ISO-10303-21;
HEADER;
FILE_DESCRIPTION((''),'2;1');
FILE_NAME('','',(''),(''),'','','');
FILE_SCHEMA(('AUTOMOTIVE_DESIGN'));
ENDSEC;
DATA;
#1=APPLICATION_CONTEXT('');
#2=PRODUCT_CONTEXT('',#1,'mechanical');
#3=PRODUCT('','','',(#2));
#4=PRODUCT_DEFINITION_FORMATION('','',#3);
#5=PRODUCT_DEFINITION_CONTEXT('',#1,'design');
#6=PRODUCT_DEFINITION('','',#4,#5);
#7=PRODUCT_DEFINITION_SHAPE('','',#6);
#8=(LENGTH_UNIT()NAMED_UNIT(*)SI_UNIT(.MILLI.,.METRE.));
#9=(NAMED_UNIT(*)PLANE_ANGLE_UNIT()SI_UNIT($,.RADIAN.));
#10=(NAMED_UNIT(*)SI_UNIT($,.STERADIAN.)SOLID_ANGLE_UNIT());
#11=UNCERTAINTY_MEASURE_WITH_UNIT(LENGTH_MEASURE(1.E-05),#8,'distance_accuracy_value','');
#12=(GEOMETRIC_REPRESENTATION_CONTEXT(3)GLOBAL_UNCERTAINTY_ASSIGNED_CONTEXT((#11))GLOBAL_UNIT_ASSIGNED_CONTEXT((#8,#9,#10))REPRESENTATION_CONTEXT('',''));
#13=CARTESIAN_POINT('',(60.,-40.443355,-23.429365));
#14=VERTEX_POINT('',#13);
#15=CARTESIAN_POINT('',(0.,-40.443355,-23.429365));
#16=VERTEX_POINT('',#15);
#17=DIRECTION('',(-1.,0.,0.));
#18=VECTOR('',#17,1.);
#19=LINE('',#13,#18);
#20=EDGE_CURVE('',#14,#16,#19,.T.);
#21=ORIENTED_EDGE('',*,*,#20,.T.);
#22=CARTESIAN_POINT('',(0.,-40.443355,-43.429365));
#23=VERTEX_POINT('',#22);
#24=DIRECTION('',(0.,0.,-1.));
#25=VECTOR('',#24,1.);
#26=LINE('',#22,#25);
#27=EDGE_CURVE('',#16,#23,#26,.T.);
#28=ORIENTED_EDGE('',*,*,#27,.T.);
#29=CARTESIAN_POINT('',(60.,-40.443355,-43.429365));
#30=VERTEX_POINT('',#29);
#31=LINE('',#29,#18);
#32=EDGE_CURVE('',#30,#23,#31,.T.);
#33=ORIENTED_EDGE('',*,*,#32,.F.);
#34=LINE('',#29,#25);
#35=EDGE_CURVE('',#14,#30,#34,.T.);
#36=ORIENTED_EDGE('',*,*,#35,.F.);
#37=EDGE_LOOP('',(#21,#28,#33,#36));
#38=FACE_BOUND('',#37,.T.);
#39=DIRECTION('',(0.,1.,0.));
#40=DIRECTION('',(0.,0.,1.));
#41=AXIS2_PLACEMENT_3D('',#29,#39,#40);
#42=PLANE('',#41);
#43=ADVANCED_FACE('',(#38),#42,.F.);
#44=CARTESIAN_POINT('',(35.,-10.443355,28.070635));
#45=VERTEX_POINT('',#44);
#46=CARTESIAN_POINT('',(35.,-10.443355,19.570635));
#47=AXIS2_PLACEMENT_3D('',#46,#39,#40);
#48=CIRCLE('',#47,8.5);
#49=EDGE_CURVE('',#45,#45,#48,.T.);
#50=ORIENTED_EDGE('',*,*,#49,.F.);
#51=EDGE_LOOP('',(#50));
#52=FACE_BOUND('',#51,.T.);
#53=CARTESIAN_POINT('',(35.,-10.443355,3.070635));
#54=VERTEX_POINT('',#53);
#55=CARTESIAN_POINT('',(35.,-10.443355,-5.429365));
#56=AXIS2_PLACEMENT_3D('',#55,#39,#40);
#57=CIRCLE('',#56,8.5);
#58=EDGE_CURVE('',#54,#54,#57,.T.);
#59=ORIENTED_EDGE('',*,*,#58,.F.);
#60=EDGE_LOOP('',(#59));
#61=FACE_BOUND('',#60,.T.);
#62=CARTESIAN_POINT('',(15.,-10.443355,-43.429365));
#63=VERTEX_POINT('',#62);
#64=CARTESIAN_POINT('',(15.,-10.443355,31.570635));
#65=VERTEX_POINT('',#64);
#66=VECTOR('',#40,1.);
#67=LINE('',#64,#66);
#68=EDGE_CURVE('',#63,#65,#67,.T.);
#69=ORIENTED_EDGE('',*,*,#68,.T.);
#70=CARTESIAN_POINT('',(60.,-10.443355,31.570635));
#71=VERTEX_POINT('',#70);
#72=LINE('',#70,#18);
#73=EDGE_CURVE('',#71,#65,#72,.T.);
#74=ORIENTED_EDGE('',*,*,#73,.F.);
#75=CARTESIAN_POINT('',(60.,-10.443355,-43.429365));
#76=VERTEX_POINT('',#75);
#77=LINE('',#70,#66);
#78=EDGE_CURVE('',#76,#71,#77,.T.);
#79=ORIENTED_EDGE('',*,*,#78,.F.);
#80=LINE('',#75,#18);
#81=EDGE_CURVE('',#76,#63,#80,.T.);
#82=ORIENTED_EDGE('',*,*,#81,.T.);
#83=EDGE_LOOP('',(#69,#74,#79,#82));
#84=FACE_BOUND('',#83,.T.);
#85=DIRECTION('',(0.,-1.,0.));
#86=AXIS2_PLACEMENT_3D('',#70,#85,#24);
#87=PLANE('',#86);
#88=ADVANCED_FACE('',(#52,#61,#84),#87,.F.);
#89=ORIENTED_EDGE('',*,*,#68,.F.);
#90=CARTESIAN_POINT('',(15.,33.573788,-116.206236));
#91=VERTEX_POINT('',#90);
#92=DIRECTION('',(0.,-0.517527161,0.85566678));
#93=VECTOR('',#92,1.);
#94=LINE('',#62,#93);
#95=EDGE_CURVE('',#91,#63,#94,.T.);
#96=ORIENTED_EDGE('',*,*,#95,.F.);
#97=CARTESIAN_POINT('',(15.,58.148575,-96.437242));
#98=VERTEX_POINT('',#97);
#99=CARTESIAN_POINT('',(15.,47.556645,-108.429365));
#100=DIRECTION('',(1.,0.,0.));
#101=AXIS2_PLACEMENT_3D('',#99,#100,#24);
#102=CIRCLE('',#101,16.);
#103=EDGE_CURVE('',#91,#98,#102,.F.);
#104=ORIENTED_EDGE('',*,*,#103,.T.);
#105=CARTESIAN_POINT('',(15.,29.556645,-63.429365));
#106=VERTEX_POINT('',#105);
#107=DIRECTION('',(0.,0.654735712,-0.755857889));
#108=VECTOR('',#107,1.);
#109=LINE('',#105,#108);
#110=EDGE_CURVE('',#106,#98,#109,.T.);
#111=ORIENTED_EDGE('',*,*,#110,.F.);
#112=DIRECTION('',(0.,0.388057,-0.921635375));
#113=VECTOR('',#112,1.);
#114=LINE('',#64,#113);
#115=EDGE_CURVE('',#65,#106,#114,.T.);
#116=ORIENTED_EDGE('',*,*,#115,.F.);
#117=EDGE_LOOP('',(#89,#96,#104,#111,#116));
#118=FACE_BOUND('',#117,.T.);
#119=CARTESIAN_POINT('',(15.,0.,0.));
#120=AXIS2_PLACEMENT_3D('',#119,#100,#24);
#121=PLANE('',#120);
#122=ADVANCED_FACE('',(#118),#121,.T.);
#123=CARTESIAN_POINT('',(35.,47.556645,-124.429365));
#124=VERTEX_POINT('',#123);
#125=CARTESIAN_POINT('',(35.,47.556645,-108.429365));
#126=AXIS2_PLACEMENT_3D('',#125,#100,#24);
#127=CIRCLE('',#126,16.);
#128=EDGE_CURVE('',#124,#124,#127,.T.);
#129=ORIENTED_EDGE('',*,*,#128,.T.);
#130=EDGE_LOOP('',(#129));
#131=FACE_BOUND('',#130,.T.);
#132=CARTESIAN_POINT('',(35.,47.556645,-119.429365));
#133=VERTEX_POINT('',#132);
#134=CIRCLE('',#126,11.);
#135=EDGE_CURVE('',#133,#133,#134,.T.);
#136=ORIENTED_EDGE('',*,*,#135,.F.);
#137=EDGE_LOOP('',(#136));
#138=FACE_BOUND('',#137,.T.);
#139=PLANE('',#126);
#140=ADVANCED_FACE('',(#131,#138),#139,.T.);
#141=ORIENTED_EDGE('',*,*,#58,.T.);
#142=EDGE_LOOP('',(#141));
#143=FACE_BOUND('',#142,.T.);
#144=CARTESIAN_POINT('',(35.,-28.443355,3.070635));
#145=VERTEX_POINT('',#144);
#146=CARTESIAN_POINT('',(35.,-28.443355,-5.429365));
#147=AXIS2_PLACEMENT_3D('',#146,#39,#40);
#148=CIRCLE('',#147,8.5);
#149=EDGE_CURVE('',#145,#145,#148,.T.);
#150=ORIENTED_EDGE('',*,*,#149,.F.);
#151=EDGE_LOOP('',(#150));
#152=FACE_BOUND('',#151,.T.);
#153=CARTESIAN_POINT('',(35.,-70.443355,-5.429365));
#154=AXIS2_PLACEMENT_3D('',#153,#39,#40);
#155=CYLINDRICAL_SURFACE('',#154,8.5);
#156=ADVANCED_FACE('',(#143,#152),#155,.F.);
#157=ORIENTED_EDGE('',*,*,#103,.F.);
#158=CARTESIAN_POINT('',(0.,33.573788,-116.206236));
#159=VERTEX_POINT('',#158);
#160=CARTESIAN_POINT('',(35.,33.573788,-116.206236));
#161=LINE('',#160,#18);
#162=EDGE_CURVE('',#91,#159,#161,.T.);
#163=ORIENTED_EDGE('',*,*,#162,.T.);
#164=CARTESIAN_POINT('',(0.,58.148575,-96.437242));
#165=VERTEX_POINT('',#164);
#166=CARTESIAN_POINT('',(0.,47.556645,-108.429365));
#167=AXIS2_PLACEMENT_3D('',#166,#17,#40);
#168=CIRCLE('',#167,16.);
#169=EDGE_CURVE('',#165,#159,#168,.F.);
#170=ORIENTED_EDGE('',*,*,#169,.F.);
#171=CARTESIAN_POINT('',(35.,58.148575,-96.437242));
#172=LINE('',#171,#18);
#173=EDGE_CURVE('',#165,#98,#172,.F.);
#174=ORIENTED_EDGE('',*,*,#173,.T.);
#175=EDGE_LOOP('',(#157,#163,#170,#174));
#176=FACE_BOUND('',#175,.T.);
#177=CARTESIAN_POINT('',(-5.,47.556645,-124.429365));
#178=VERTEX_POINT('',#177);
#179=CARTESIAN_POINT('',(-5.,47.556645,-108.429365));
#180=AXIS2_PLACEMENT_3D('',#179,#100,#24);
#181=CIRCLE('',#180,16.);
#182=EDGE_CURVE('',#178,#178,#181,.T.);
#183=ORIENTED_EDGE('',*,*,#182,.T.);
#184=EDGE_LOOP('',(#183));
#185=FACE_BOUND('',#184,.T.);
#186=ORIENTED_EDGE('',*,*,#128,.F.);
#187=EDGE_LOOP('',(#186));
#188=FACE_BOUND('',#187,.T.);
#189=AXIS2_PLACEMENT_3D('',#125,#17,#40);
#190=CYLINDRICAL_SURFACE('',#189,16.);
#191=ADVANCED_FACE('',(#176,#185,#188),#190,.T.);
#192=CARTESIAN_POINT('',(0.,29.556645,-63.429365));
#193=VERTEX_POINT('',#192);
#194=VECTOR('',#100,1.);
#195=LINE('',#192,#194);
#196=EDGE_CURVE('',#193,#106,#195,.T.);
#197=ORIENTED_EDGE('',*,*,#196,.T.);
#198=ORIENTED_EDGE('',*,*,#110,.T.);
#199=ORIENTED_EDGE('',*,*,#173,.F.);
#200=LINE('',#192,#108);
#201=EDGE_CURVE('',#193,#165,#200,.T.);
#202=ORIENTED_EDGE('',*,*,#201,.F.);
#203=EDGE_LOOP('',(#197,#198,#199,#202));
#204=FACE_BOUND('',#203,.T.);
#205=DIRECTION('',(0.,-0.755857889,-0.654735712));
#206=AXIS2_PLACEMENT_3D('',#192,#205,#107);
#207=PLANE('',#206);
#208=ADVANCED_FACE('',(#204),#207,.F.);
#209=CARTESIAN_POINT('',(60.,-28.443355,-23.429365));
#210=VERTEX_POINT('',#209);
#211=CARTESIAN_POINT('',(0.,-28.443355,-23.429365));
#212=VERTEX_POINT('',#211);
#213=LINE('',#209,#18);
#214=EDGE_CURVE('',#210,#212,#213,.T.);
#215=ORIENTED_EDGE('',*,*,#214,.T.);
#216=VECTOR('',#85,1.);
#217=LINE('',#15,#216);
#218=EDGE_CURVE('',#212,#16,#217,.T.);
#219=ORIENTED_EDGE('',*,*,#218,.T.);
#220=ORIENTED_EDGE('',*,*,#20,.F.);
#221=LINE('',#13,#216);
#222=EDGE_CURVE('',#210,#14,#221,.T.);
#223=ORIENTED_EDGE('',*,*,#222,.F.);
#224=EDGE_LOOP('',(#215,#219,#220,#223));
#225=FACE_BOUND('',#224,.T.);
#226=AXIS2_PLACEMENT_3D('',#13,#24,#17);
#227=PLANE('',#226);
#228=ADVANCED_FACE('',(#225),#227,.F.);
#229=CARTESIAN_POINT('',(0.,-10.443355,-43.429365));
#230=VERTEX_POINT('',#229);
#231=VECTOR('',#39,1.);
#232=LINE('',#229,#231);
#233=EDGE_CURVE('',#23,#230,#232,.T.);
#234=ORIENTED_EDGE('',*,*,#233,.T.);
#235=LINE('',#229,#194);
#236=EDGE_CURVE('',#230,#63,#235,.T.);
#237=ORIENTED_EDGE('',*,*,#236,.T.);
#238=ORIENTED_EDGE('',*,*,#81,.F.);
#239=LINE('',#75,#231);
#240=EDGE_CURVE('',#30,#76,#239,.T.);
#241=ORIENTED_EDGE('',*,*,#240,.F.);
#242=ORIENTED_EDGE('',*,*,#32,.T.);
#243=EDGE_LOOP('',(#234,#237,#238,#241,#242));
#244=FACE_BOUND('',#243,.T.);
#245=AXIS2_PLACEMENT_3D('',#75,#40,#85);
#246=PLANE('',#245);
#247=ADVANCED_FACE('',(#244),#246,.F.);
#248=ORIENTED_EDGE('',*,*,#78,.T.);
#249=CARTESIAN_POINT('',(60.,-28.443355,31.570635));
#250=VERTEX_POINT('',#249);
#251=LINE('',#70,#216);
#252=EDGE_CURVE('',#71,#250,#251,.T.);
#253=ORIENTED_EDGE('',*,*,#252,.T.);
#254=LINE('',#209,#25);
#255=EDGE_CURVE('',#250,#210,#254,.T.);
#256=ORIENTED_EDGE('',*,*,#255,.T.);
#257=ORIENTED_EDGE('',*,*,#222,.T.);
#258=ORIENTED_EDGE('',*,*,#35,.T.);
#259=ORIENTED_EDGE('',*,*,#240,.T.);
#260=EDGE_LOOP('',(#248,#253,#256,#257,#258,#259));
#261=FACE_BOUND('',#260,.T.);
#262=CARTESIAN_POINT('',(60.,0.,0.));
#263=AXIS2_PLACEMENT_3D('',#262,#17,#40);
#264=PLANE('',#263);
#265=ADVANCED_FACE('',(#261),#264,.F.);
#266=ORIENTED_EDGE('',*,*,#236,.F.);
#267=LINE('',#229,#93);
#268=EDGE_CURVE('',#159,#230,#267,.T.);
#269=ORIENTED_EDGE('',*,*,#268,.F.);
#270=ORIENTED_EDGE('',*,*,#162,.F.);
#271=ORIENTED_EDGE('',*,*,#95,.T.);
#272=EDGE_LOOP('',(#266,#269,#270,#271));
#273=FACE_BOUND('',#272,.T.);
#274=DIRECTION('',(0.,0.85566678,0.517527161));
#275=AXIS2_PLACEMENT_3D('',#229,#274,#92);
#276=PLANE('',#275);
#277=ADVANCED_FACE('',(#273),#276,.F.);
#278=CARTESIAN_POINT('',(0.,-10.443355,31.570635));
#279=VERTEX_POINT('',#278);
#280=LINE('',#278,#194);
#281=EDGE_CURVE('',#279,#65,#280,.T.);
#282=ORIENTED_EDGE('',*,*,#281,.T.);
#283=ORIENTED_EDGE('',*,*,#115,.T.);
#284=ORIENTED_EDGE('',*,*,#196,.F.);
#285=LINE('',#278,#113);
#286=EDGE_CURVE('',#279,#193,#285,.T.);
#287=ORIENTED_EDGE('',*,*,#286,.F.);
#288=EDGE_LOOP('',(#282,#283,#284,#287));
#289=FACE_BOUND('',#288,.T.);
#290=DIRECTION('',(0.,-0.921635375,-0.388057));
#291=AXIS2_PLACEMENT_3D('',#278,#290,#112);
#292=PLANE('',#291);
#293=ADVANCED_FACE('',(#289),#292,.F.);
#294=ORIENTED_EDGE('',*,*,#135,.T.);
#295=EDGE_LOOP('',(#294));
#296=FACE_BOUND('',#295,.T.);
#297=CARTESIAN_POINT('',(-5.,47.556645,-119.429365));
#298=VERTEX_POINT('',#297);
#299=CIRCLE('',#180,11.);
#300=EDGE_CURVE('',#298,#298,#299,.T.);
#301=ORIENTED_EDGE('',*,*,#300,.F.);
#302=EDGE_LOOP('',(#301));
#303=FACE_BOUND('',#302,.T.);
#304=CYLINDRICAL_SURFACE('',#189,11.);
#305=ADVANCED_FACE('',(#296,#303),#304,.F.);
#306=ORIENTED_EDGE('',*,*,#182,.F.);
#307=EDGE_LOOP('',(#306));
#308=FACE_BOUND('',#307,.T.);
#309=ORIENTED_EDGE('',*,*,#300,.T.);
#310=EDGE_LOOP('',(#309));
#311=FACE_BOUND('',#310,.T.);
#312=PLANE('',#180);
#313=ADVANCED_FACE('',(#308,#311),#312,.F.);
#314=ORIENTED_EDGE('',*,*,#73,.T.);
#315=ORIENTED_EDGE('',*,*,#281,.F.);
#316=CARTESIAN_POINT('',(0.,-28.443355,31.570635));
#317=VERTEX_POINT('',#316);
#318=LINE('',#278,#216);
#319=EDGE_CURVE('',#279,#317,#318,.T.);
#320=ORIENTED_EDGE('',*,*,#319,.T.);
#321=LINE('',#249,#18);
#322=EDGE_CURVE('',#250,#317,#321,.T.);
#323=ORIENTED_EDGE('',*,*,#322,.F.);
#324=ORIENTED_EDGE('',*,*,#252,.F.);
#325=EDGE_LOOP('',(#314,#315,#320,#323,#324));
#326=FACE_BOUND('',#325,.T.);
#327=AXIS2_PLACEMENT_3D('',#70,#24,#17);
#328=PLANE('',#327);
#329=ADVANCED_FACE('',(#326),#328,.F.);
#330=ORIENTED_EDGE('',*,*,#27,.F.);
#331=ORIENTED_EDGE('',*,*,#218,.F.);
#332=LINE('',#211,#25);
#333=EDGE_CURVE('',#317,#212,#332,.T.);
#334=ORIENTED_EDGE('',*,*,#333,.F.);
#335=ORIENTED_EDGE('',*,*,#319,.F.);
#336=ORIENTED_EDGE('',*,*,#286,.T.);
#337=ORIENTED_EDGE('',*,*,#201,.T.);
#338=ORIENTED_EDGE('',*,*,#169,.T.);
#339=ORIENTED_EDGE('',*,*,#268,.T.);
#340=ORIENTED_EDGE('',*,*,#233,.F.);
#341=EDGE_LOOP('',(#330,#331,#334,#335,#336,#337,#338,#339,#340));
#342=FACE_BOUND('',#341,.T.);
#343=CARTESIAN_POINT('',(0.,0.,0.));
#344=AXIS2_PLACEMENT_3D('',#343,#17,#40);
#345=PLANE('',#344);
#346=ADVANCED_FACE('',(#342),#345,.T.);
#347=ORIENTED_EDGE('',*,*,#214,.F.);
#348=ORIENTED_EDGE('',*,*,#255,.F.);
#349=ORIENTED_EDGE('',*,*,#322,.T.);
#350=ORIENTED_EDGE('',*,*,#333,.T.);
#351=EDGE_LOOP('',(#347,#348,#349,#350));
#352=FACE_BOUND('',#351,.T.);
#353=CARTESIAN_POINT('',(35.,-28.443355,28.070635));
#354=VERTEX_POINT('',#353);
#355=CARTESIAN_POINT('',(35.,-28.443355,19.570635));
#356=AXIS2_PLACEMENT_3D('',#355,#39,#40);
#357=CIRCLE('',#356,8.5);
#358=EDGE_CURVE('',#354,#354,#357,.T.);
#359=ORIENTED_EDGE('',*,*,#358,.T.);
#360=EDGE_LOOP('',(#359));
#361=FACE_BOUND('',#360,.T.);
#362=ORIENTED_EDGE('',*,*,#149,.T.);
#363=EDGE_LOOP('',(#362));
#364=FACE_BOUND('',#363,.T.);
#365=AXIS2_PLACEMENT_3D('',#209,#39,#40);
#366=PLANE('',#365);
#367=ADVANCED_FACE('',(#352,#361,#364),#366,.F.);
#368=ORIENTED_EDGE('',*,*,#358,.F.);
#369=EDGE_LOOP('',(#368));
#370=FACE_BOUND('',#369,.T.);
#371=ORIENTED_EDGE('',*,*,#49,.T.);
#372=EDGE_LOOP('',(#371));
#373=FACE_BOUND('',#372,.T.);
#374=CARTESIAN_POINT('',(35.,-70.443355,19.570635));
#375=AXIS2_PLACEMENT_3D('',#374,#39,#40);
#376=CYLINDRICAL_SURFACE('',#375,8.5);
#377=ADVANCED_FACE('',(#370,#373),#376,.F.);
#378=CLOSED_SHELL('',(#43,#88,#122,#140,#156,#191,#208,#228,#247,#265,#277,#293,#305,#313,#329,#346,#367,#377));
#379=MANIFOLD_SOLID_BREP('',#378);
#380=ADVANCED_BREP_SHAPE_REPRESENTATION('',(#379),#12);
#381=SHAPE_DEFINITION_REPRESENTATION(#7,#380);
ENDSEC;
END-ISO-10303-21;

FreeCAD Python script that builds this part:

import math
import FreeCAD as App
import Part
import Sketcher
from FreeCAD import Vector
Q = App.Units.Quantity

doc = App.newDocument("Part")
params = doc.addObject("Spreadsheet::Sheet", "Params")
for row, (alias, value) in enumerate([
    ("sketch1_width", "18 mm"),
    ("sketch1_width2", "12 mm"),
    ("sketch1_height", "55 mm"),
    ("sketch1_height2", "20 mm"),
    ("pad1_length", "60 mm"),
    ("sketch2_diameter", "17 mm"),
    ("pocket1_length", "60 mm"),
    ("sketch3_height", "75 mm"),
    ("sketch3_length", "32 mm"),
    ("pad2_length", "15 mm"),
    ("sketch4_diameter", "32 mm"),
    ("sketch4_diameter2", "22 mm"),
    ("pad3_length", "20 mm"),
    ("pad3_length2", "20 mm"),
    ("sketch5_radius", "11 mm"),
    ("pocket2_length", "57 mm"),
], start=1):
    params.set(f"A{row}", alias)
    params.set(f"B{row}", "=" + value)
    params.setAlias(f"B{row}", alias)

body = doc.addObject("PartDesign::Body", "Body")

sketch1 = body.newObject("Sketcher::SketchObject", "Sketch")
sketch1.AttachmentSupport = (doc.getObject("YZ_Plane"), [""])
sketch1.MapMode = "FlatFace"
sketch1.addGeometry([
    Part.LineSegment(Vector(-10, 32, 0), Vector(-28, 32, 0)),
    Part.LineSegment(Vector(-28, 32, 0), Vector(-28, -23, 0)),
    Part.LineSegment(Vector(-28, -23, 0), Vector(-40, -23, 0)),
    Part.LineSegment(Vector(-40, -23, 0), Vector(-40, -43, 0)),
    Part.LineSegment(Vector(-40, -43, 0), Vector(-10, -43, 0)),
    Part.LineSegment(Vector(-10, -43, 0), Vector(-10, 32, 0)),
], False)
sketch1.addConstraint([
    Sketcher.Constraint("Coincident", 0, 2, 1, 1),
    Sketcher.Constraint("Coincident", 1, 2, 2, 1),
    Sketcher.Constraint("Coincident", 2, 2, 3, 1),
    Sketcher.Constraint("Coincident", 3, 2, 4, 1),
    Sketcher.Constraint("Coincident", 4, 2, 5, 1),
    Sketcher.Constraint("Coincident", 5, 2, 0, 1),
    Sketcher.Constraint("Horizontal", 0),
    Sketcher.Constraint("Vertical", 1),
    Sketcher.Constraint("Horizontal", 2),
    Sketcher.Constraint("Vertical", 3),
    Sketcher.Constraint("Horizontal", 4),
    Sketcher.Constraint("Vertical", 5),
    Sketcher.Constraint("DistanceX", 0, 2, 0, 1, Q("18 mm")),
    Sketcher.Constraint("DistanceX", 2, 2, 2, 1, Q("12 mm")),
    Sketcher.Constraint("DistanceY", 1, 2, 1, 1, Q("55 mm")),
    Sketcher.Constraint("DistanceY", 3, 2, 3, 1, Q("20 mm")),
    Sketcher.Constraint("DistanceX", 0, 2, -1, 1, Q("28.443355 mm")),
    Sketcher.Constraint("DistanceY", -1, 1, 0, 2, Q("31.570635 mm")),
])
sketch1.setExpression("Constraints[12]", "Params.sketch1_width")
sketch1.setExpression("Constraints[13]", "Params.sketch1_width2")
sketch1.setExpression("Constraints[14]", "Params.sketch1_height")
sketch1.setExpression("Constraints[15]", "Params.sketch1_height2")
pad1 = body.newObject("PartDesign::Pad", "Pad")
pad1.Profile = sketch1
pad1.setExpression("Length", "Params.pad1_length")

sketch2 = body.newObject("Sketcher::SketchObject", "Sketch001")
sketch2.AttachmentSupport = (doc.getObject("XZ_Plane"), [""])
sketch2.MapMode = "FlatFace"
sketch2.AttachmentOffset = App.Placement(Vector(0, 0, 10.443355), App.Rotation())
sketch2.addGeometry([
    Part.Circle(Vector(35, 20, 0), Vector(0, 0, 1), 8),
    Part.Circle(Vector(35, -5, 0), Vector(0, 0, 1), 8),
], False)
sketch2.addConstraint([
    Sketcher.Constraint("Equal", 0, 1),
    Sketcher.Constraint("Vertical", 0, 3, 1, 3),
    Sketcher.Constraint("Diameter", 0, Q("17 mm")),
    Sketcher.Constraint("DistanceX", -1, 1, 0, 3, Q("35 mm")),
    Sketcher.Constraint("DistanceY", 1, 3, 0, 3, Q("25 mm")),
    Sketcher.Constraint("DistanceY", -1, 1, 0, 3, Q("19.570635 mm")),
])
sketch2.setExpression("Constraints[2]", "Params.sketch2_diameter")
pocket1 = body.newObject("PartDesign::Pocket", "Pocket")
pocket1.Profile = sketch2
pocket1.setExpression("Length", "Params.pocket1_length")
pocket1.Reversed = True

sketch3 = body.newObject("Sketcher::SketchObject", "Sketch002")
sketch3.AttachmentSupport = (doc.getObject("YZ_Plane"), [""])
sketch3.MapMode = "FlatFace"
sketch3.addGeometry([
    Part.LineSegment(Vector(-10, 32, 0), Vector(-10, -43, 0)),
    Part.LineSegment(Vector(-10, -43, 0), Vector(34, -117, 0)),
    Part.LineSegment(Vector(34, -117, 0), Vector(61, -100, 0)),
    Part.LineSegment(Vector(61, -100, 0), Vector(30, -63, 0)),
    Part.LineSegment(Vector(30, -63, 0), Vector(-10, 32, 0)),
], False)
sketch3.addConstraint([
    Sketcher.Constraint("Coincident", 0, 2, 1, 1),
    Sketcher.Constraint("Coincident", 1, 2, 2, 1),
    Sketcher.Constraint("Coincident", 2, 2, 3, 1),
    Sketcher.Constraint("Coincident", 3, 2, 4, 1),
    Sketcher.Constraint("Coincident", 4, 2, 0, 1),
    Sketcher.Constraint("Vertical", 0),
    Sketcher.Constraint("DistanceY", 0, 2, 0, 1, Q("75 mm")),
    Sketcher.Constraint("Distance", 2, Q("32 mm")),
    Sketcher.Constraint("DistanceX", 0, 2, 3, 2, Q("40 mm")),
    Sketcher.Constraint("DistanceY", 3, 2, 0, 2, Q("20 mm")),
    Sketcher.Constraint("DistanceX", -1, 1, 2, 2, Q("60.936998 mm")),
    Sketcher.Constraint("DistanceY", 1, 2, -1, 1, Q("117.202401 mm")),
    Sketcher.Constraint("DistanceY", 2, 2, -1, 1, Q("99.65633 mm")),
    Sketcher.Constraint("Distance", 1, Q("86.217015 mm")),
    Sketcher.Constraint("Distance", 3, Q("47.928275 mm")),
])
sketch3.setExpression("Constraints[6]", "Params.sketch3_height")
sketch3.setExpression("Constraints[7]", "Params.sketch3_length")
pad2 = body.newObject("PartDesign::Pad", "Pad001")
pad2.Profile = sketch3
pad2.setExpression("Length", "Params.pad2_length")

sketch4 = body.newObject("Sketcher::SketchObject", "Sketch003")
sketch4.AttachmentSupport = (doc.getObject("YZ_Plane"), [""])
sketch4.MapMode = "FlatFace"
sketch4.AttachmentOffset = App.Placement(Vector(0, 0, 15), App.Rotation())
sketch4.addGeometry([
    Part.Circle(Vector(48, -108, 0), Vector(0, 0, 1), 16),
    Part.Circle(Vector(48, -108, 0), Vector(0, 0, 1), 11),
], False)
sketch4.addConstraint([
    Sketcher.Constraint("Coincident", 1, 3, 0, 3),
    Sketcher.Constraint("Diameter", 0, Q("32 mm")),
    Sketcher.Constraint("Diameter", 1, Q("22 mm")),
    Sketcher.Constraint("DistanceX", -1, 1, 0, 3, Q("47.556645 mm")),
    Sketcher.Constraint("DistanceY", 0, 3, -1, 1, Q("108.429365 mm")),
])
sketch4.setExpression("Constraints[1]", "Params.sketch4_diameter")
sketch4.setExpression("Constraints[2]", "Params.sketch4_diameter2")
pad3 = body.newObject("PartDesign::Pad", "Pad002")
pad3.Profile = sketch4
pad3.Type = "TwoLengths"
pad3.setExpression("Length", "Params.pad3_length")
pad3.setExpression("Length2", "Params.pad3_length2")

sketch5 = body.newObject("Sketcher::SketchObject", "Sketch004")
sketch5.AttachmentSupport = (doc.getObject("YZ_Plane"), [""])
sketch5.MapMode = "FlatFace"
sketch5.AttachmentOffset = App.Placement(Vector(0, 0, 15), App.Rotation())
sketch5.addGeometry([
    Part.LineSegment(Vector(38, -114, 0), Vector(57, -102, 0)),
    Part.ArcOfCircle(Part.Circle(Vector(48, -108, 0), Vector(0, 0, 1), 11), math.radians(33), math.radians(213)),
], False)
sketch5.addConstraint([
    Sketcher.Constraint("Coincident", 0, 1, 1, 2),
    Sketcher.Constraint("Coincident", 1, 1, 0, 2),
    Sketcher.Constraint("Radius", 1, Q("11 mm")),
    Sketcher.Constraint("DistanceX", -1, 1, 1, 1, Q("56.755638 mm")),
    Sketcher.Constraint("DistanceY", 0, 1, 1, 3, Q("6.031462 mm")),
    Sketcher.Constraint("DistanceY", 1, 3, 1, 1, Q("6.031462 mm")),
    Sketcher.Constraint("DistanceY", 1, 3, -1, 1, Q("108.429365 mm")),
])
sketch5.setExpression("Constraints[2]", "Params.sketch5_radius")
pocket2 = body.newObject("PartDesign::Pocket", "Pocket001")
pocket2.Profile = sketch5
pocket2.setExpression("Length", "Params.pocket2_length")

doc.recompute()
